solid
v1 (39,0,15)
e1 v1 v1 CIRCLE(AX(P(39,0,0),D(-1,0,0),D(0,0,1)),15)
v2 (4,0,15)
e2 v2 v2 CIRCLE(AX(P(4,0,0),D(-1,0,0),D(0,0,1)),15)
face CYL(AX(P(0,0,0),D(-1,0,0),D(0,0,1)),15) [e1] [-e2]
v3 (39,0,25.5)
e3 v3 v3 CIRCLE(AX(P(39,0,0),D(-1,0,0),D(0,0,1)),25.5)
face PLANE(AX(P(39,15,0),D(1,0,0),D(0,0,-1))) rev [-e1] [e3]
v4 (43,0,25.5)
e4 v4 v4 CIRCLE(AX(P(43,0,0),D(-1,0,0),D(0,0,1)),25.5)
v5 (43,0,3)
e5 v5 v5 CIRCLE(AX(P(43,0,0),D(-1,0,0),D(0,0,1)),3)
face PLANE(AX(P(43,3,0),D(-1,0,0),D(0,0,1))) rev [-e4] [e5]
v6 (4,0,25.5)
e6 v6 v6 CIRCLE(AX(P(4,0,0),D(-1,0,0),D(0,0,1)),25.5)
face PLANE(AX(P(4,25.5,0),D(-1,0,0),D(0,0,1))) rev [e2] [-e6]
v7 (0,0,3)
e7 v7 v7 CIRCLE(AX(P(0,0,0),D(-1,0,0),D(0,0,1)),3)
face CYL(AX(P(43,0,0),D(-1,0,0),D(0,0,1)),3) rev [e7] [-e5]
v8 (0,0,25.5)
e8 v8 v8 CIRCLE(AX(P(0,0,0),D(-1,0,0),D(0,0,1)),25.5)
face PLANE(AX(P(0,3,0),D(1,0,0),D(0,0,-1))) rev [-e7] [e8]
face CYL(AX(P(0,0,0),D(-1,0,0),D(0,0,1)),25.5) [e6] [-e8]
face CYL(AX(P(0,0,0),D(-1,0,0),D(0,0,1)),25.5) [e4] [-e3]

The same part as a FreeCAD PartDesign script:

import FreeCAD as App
import Part
import Sketcher

doc = App.newDocument("Part")
body = doc.addObject("PartDesign::Body", "Body")

# Sketch on XY plane
sketch1 = doc.addObject("Sketcher::SketchObject", "Sketch")
body.addObject(sketch1)
sketch1.AttachmentSupport = (doc.XY_Plane, [""])
sketch1.MapMode = "FlatFace"
sketch1.addGeometry(Part.LineSegment(App.Vector(0, 25.5, 0), App.Vector(0, 0, 0)), False)
sketch1.addGeometry(Part.LineSegment(App.Vector(0, 0, 0), App.Vector(43, 0, 0)), False)
sketch1.addGeometry(Part.LineSegment(App.Vector(43, 0, 0), App.Vector(43, 25.5, 0)), False)
sketch1.addGeometry(Part.LineSegment(App.Vector(43, 25.5, 0), App.Vector(39, 25.5, 0)), False)
sketch1.addGeometry(Part.LineSegment(App.Vector(39, 25.5, 0), App.Vector(39, 15, 0)), False)
sketch1.addGeometry(Part.LineSegment(App.Vector(39, 15, 0), App.Vector(4, 15, 0)), False)
sketch1.addGeometry(Part.LineSegment(App.Vector(4, 15, 0), App.Vector(4, 25.5, 0)), False)
sketch1.addGeometry(Part.LineSegment(App.Vector(4, 25.5, 0), App.Vector(0, 25.5, 0)), False)
sketch1.addConstraint(Sketcher.Constraint("Coincident", 0, 2, 1, 1))
sketch1.addConstraint(Sketcher.Constraint("Coincident", 1, 2, 2, 1))
sketch1.addConstraint(Sketcher.Constraint("Coincident", 2, 2, 3, 1))
sketch1.addConstraint(Sketcher.Constraint("Coincident", 3, 2, 4, 1))
sketch1.addConstraint(Sketcher.Constraint("Coincident", 4, 2, 5, 1))
sketch1.addConstraint(Sketcher.Constraint("Coincident", 5, 2, 6, 1))
sketch1.addConstraint(Sketcher.Constraint("Coincident", 6, 2, 7, 1))
sketch1.addConstraint(Sketcher.Constraint("Coincident", 7, 2, 0, 1))
sketch1.addConstraint(Sketcher.Constraint("Vertical", 0))
sketch1.addConstraint(Sketcher.Constraint("Horizontal", 1))
sketch1.addConstraint(Sketcher.Constraint("Vertical", 2))
sketch1.addConstraint(Sketcher.Constraint("Horizontal", 3))
sketch1.addConstraint(Sketcher.Constraint("Vertical", 4))
sketch1.addConstraint(Sketcher.Constraint("Horizontal", 5))
sketch1.addConstraint(Sketcher.Constraint("Vertical", 6))
sketch1.addConstraint(Sketcher.Constraint("Horizontal", 7))
sketch1.addConstraint(Sketcher.Constraint("Coincident", 0, 2, -1, 1))
sketch1.addConstraint(Sketcher.Constraint("Horizontal", 3, 2, 6, 2))
sketch1.addConstraint(Sketcher.Constraint("Equal", 3, 7))
sketch1.addConstraint(Sketcher.Constraint("DistanceX", 1, 1, 1, 2, 43.0))
sketch1.addConstraint(Sketcher.Constraint("DistanceX", 3, 2, 3, 1, 4.0))
sketch1.addConstraint(Sketcher.Constraint("DistanceY", 0, 2, 0, 1, 25.5))
sketch1.addConstraint(Sketcher.Constraint("DistanceY", 4, 2, 4, 1, 10.5))
revolution = doc.addObject("PartDesign::Revolution", "Revolution")
body.addObject(revolution)
revolution.Profile = sketch1
revolution.ReferenceAxis = (sketch1, ["H_Axis"])
revolution.Angle = 360

# Sketch on YZ plane
sketch2 = doc.addObject("Sketcher::SketchObject", "Sketch001")
body.addObject(sketch2)
sketch2.AttachmentSupport = (doc.YZ_Plane, [""])
sketch2.MapMode = "FlatFace"
sketch2.addGeometry(Part.Circle(App.Vector(0, 0, 0), App.Vector(0, 0, 1), 3), False)
sketch2.addConstraint(Sketcher.Constraint("Coincident", 0, 3, -1, 1))
sketch2.addConstraint(Sketcher.Constraint("Diameter", 0, 6.0))
pocket1 = doc.addObject("PartDesign::Pocket", "Pocket")
body.addObject(pocket1)
pocket1.Profile = sketch2
pocket1.Type = "ThroughAll"
pocket1.Reversed = True

doc.recompute()
